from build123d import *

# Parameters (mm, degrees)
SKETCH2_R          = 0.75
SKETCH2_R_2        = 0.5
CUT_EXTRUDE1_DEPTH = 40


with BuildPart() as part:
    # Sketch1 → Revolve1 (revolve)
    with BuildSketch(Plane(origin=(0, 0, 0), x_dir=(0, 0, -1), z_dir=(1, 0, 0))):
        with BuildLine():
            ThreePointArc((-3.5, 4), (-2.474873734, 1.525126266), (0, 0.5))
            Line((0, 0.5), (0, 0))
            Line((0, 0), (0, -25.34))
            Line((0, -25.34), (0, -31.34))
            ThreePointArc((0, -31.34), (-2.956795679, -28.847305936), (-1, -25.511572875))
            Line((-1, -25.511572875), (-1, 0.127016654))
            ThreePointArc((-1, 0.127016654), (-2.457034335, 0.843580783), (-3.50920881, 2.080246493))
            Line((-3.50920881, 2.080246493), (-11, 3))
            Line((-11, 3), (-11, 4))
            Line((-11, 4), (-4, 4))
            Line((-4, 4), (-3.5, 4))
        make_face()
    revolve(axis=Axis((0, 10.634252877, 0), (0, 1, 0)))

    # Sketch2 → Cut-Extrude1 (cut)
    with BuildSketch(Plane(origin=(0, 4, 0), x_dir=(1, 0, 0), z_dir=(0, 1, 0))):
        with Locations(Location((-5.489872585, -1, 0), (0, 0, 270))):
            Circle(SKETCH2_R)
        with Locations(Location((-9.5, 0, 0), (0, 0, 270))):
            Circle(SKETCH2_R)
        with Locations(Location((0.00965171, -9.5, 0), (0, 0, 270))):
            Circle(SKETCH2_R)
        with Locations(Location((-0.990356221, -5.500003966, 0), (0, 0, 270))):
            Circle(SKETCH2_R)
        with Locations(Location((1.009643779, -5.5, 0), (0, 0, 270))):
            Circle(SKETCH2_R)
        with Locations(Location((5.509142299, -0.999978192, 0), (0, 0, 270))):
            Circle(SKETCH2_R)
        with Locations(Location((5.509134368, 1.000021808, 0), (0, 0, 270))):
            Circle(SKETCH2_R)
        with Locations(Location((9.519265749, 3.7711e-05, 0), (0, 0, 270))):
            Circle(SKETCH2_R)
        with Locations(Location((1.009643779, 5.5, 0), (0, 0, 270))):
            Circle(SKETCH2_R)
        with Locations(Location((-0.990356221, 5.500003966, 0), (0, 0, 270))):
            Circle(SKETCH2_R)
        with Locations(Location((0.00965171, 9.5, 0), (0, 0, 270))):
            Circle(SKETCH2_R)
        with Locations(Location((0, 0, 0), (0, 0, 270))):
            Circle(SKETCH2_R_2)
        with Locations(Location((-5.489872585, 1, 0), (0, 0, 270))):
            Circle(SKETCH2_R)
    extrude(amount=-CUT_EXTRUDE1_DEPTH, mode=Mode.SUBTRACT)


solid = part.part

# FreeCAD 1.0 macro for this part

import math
import FreeCAD as App
import Part
import Sketcher
Q = App.Units.Quantity

doc = App.newDocument("Part")
body = doc.addObject("PartDesign::Body", "Body")

# Sketch on YZ plane
sketch1 = doc.addObject("Sketcher::SketchObject", "Sketch")
body.addObject(sketch1)
sketch1.AttachmentSupport = (doc.YZ_Plane, [""])
sketch1.MapMode = "FlatFace"
sketch1.addGeometry(Part.ArcOfCircle(Part.Circle(App.Vector(4, 0, 0), App.Vector(0, 0, 1), 3.5), math.radians(90), math.radians(180)), False)
sketch1.addGeometry(Part.LineSegment(App.Vector(4, 3.5, 0), App.Vector(4, 11, 0)), False)
sketch1.addGeometry(Part.LineSegment(App.Vector(4, 11, 0), App.Vector(3, 11, 0)), False)
sketch1.addGeometry(Part.LineSegment(App.Vector(3, 11, 0), App.Vector(2.1, 3.5, 0)), False)
sketch1.addGeometry(Part.ArcOfCircle(Part.Circle(App.Vector(4, 0, 0), App.Vector(0, 0, 1), 4), math.radians(119), math.radians(166)), False)
sketch1.addGeometry(Part.LineSegment(App.Vector(0.1, 1, 0), App.Vector(-25.5, 1, 0)), False)
sketch1.addGeometry(Part.ArcOfCircle(Part.Circle(App.Vector(-28.3, 0, 0), App.Vector(0, 0, 1), 3), math.radians(19), math.radians(180)), False)
sketch1.addGeometry(Part.LineSegment(App.Vector(-31.3, 0, 0), App.Vector(0.5, 0, 0)), False)
sketch1.addConstraint(Sketcher.Constraint("Coincident", 0, 1, 1, 1))
sketch1.addConstraint(Sketcher.Constraint("Coincident", 1, 2, 2, 1))
sketch1.addConstraint(Sketcher.Constraint("Coincident", 2, 2, 3, 1))
sketch1.addConstraint(Sketcher.Constraint("Coincident", 3, 2, 4, 1))
sketch1.addConstraint(Sketcher.Constraint("Coincident", 4, 2, 5, 1))
sketch1.addConstraint(Sketcher.Constraint("Coincident", 5, 2, 6, 1))
sketch1.addConstraint(Sketcher.Constraint("Coincident", 6, 2, 7, 1))
sketch1.addConstraint(Sketcher.Constraint("Coincident", 7, 2, 0, 2))
sketch1.addConstraint(Sketcher.Constraint("Vertical", 1))
sketch1.addConstraint(Sketcher.Constraint("Horizontal", 2))
sketch1.addConstraint(Sketcher.Constraint("Horizontal", 5))
sketch1.addConstraint(Sketcher.Constraint("Horizontal", 7))
sketch1.addConstraint(Sketcher.Constraint("Coincident", 4, 3, 0, 3))
sketch1.addConstraint(Sketcher.Constraint("PointOnObject", 0, 3, -1))
sketch1.addConstraint(Sketcher.Constraint("PointOnObject", 6, 3, -1))
sketch1.addConstraint(Sketcher.Constraint("PointOnObject", 6, 2, -1))
sketch1.addConstraint(Sketcher.Constraint("Vertical", 4, 3, 0, 1))
sketch1.addConstraint(Sketcher.Constraint("Radius", 4, Q("4 mm")))
sketch1.addConstraint(Sketcher.Constraint("Radius", 6, Q("3 mm")))
sketch1.addConstraint(Sketcher.Constraint("Radius", 0, Q("3.5 mm")))
sketch1.addConstraint(Sketcher.Constraint("DistanceX", 2, 2, 2, 1, Q("1 mm")))
sketch1.addConstraint(Sketcher.Constraint("Angle", 3, Q("-97 deg")))
sketch1.addConstraint(Sketcher.Constraint("DistanceY", 1, 1, 1, 2, Q("7.5 mm")))
sketch1.addConstraint(Sketcher.Constraint("DistanceX", -1, 1, 0, 3, Q("4 mm")))
sketch1.addConstraint(Sketcher.Constraint("DistanceY", -1, 1, 4, 2, Q("1 mm")))
sketch1.addConstraint(Sketcher.Constraint("DistanceX", 7, 1, 7, 2, Q("31.84 mm")))
revolution = doc.addObject("PartDesign::Revolution", "Revolution")
body.addObject(revolution)
revolution.Profile = sketch1
revolution.ReferenceAxis = (sketch1, ["H_Axis"])
revolution.Angle = 360

# Sketch on XZ plane
sketch2 = doc.addObject("Sketcher::SketchObject", "Sketch001")
body.addObject(sketch2)
sketch2.AttachmentSupport = (doc.XZ_Plane, [""])
sketch2.MapMode = "FlatFace"
sketch2.AttachmentOffset = App.Placement(App.Vector(0, 0, -4), App.Rotation())
sketch2.addGeometry(Part.Circle(App.Vector(-5.5, 1, 0), App.Vector(0, 0, 1), 0.8), False)
sketch2.addGeometry(Part.Circle(App.Vector(-9.5, 0, 0), App.Vector(0, 0, 1), 0.8), False)
sketch2.addGeometry(Part.Circle(App.Vector(0, 9.5, 0), App.Vector(0, 0, 1), 0.8), False)
sketch2.addGeometry(Part.Circle(App.Vector(-1, 5.5, 0), App.Vector(0, 0, 1), 0.8), False)
sketch2.addGeometry(Part.Circle(App.Vector(1, 5.5, 0), App.Vector(0, 0, 1), 0.8), False)
sketch2.addGeometry(Part.Circle(App.Vector(5.5, 1, 0), App.Vector(0, 0, 1), 0.8), False)
sketch2.addGeometry(Part.Circle(App.Vector(5.5, -1, 0), App.Vector(0, 0, 1), 0.8), False)
sketch2.addGeometry(Part.Circle(App.Vector(9.5, 0, 0), App.Vector(0, 0, 1), 0.8), False)
sketch2.addGeometry(Part.Circle(App.Vector(1, -5.5, 0), App.Vector(0, 0, 1), 0.8), False)
sketch2.addGeometry(Part.Circle(App.Vector(-1, -5.5, 0), App.Vector(0, 0, 1), 0.8), False)
sketch2.addGeometry(Part.Circle(App.Vector(0, -9.5, 0), App.Vector(0, 0, 1), 0.8), False)
sketch2.addGeometry(Part.Circle(App.Vector(0, 0, 0), App.Vector(0, 0, 1), 0.5), False)
sketch2.addGeometry(Part.Circle(App.Vector(-5.5, -1, 0), App.Vector(0, 0, 1), 0.8), False)
sketch2.addConstraint(Sketcher.Constraint("Coincident", 11, 3, -1, 1))
sketch2.addConstraint(Sketcher.Constraint("Equal", 0, 1))
sketch2.addConstraint(Sketcher.Constraint("Equal", 1, 2))
sketch2.addConstraint(Sketcher.Constraint("Equal", 2, 3))
sketch2.addConstraint(Sketcher.Constraint("Equal", 3, 4))
sketch2.addConstraint(Sketcher.Constraint("Equal", 4, 5))
sketch2.addConstraint(Sketcher.Constraint("Equal", 5, 6))
sketch2.addConstraint(Sketcher.Constraint("Equal", 6, 7))
sketch2.addConstraint(Sketcher.Constraint("Equal", 7, 8))
sketch2.addConstraint(Sketcher.Constraint("Equal", 8, 9))
sketch2.addConstraint(Sketcher.Constraint("Equal", 9, 10))
sketch2.addConstraint(Sketcher.Constraint("Equal", 10, 12))
sketch2.addConstraint(Sketcher.Constraint("Symmetric", 4, 3, 8, 3, -1))
sketch2.addConstraint(Sketcher.Constraint("Symmetric", 3, 3, 9, 3, -1))
sketch2.addConstraint(Sketcher.Constraint("Symmetric", 2, 3, 10, 3, -1))
sketch2.addConstraint(Sketcher.Constraint("Symmetric", 0, 3, 12, 3, -1))
sketch2.addConstraint(Sketcher.Constraint("PointOnObject", 1, 3, -1))
sketch2.addConstraint(Sketcher.Constraint("Diameter", 11, Q("1 mm")))
sketch2.addConstraint(Sketcher.Constraint("Diameter", 0, Q("1.5 mm")))
sketch2.addConstraint(Sketcher.Constraint("DistanceY", -1, 1, 0, 3, Q("1 mm")))
sketch2.addConstraint(Sketcher.Constraint("DistanceX", 3, 3, 4, 3, Q("2 mm")))
sketch2.addConstraint(Sketcher.Constraint("DistanceY", 4, 3, 2, 3, Q("4 mm")))
sketch2.addConstraint(Sketcher.Constraint("DistanceY", 6, 3, 5, 3, Q("2 mm")))
sketch2.addConstraint(Sketcher.Constraint("DistanceY", 8, 3, 4, 3, Q("11 mm")))
sketch2.addConstraint(Sketcher.Constraint("DistanceX", 1, 3, -1, 1, Q("9.5 mm")))
sketch2.addConstraint(Sketcher.Constraint("DistanceX", 4, 3, 5, 3, Q("4.499499 mm")))
sketch2.addConstraint(Sketcher.Constraint("DistanceX", -1, 1, 2, 3, Q("0.009652 mm")))
sketch2.addConstraint(Sketcher.Constraint("DistanceY", -1, 1, 5, 3, Q("0.999978 mm")))
sketch2.addConstraint(Sketcher.Constraint("DistanceX", 2, 3, 5, 3, Q("5.499491 mm")))
sketch2.addConstraint(Sketcher.Constraint("DistanceX", 4, 3, 6, 3, Q("4.499491 mm")))
sketch2.addConstraint(Sketcher.Constraint("DistanceX", 6, 3, 7, 3, Q("4.010131 mm")))
sketch2.addConstraint(Sketcher.Constraint("DistanceY", 7, 3, 3, 3, Q("5.500042 mm")))
sketch2.addConstraint(Sketcher.Constraint("DistanceX", 0, 3, -1, 1, Q("5.489873 mm")))
sketch2.addConstraint(Sketcher.Constraint("DistanceY", -1, 1, 3, 3, Q("5.500004 mm")))
pocket1 = doc.addObject("PartDesign::Pocket", "Pocket")
body.addObject(pocket1)
pocket1.Profile = sketch2
pocket1.Length = 40
pocket1.Reversed = True

doc.recompute()
